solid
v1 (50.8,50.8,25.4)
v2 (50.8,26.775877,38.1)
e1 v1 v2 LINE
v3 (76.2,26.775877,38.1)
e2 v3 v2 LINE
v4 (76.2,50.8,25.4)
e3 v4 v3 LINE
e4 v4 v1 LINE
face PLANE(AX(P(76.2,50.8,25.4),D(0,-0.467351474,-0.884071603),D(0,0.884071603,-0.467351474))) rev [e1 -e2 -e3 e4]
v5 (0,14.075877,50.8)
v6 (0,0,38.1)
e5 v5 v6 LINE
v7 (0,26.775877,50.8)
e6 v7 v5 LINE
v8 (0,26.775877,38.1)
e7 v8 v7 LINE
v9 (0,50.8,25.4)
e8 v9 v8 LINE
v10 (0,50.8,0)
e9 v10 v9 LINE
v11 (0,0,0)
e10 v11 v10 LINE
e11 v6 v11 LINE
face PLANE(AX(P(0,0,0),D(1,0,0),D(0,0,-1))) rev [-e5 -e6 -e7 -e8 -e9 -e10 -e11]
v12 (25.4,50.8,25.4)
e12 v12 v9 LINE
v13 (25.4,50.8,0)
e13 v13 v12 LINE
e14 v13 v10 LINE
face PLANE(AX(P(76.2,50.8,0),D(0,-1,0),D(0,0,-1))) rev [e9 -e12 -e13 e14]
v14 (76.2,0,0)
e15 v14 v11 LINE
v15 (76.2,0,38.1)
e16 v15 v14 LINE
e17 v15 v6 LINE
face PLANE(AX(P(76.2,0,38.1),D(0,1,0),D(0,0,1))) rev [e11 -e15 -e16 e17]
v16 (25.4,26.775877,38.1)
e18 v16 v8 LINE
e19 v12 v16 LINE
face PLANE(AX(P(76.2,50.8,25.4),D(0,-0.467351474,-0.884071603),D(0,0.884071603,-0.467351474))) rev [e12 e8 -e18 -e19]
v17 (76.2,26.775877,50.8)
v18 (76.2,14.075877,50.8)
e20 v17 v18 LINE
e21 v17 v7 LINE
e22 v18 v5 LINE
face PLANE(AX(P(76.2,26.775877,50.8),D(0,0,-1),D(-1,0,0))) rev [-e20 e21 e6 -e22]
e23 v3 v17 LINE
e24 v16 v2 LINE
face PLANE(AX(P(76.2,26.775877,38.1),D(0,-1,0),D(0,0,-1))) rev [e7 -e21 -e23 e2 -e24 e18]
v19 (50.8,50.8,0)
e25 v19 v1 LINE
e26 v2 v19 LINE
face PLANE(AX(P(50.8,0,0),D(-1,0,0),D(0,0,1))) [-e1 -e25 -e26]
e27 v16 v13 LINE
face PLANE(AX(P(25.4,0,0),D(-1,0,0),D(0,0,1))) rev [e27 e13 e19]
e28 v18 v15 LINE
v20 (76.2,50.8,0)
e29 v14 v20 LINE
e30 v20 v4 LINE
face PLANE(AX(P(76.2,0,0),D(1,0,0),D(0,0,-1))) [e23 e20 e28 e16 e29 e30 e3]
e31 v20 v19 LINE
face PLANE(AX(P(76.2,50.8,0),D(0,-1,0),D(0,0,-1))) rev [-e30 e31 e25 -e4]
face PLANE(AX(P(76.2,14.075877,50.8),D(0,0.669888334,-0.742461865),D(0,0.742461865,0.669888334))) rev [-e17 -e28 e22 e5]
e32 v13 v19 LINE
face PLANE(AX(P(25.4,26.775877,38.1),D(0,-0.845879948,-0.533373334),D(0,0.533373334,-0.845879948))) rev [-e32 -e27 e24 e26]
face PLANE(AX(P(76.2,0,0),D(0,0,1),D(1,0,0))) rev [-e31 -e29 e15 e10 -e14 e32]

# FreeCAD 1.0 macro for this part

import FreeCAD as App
import Part
import Sketcher

V = App.Vector
Q = App.Units.Quantity

doc = App.newDocument("Part")
body = doc.addObject("PartDesign::Body", "Body")

# Sketch on YZ plane
sketch1 = doc.addObject("Sketcher::SketchObject", "Sketch")
body.addObject(sketch1)
sketch1.AttachmentSupport = (doc.YZ_Plane, [""])
sketch1.MapMode = "FlatFace"
sketch1.addGeometry([
    Part.LineSegment(V(0, 0, 0), V(50.8, 0, 0)),  # 0
    Part.LineSegment(V(50.8, 0, 0), V(50.8, 25.4, 0)),  # 1
    Part.LineSegment(V(50.8, 25.4, 0), V(26.775877, 38.1, 0)),  # 2
    Part.LineSegment(V(26.775877, 38.1, 0), V(26.775877, 50.8, 0)),  # 3
    Part.LineSegment(V(26.775877, 50.8, 0), V(14.075877, 50.8, 0)),  # 4
    Part.LineSegment(V(14.075877, 50.8, 0), V(0, 38.1, 0)),  # 5
    Part.LineSegment(V(0, 38.1, 0), V(0, 0, 0)),  # 6
], False)
sketch1.addConstraint([
    Sketcher.Constraint("Coincident", 0, 2, 1, 1),
    Sketcher.Constraint("Coincident", 1, 2, 2, 1),
    Sketcher.Constraint("Coincident", 2, 2, 3, 1),
    Sketcher.Constraint("Coincident", 3, 2, 4, 1),
    Sketcher.Constraint("Coincident", 4, 2, 5, 1),
    Sketcher.Constraint("Coincident", 5, 2, 6, 1),
    Sketcher.Constraint("Coincident", 6, 2, 0, 1),
    Sketcher.Constraint("Horizontal", 0),
    Sketcher.Constraint("Vertical", 1),
    Sketcher.Constraint("Vertical", 3),
    Sketcher.Constraint("Horizontal", 4),
    Sketcher.Constraint("Vertical", 6),
    Sketcher.Constraint("Coincident", 6, 2, -1, 1),
    Sketcher.Constraint("Horizontal", 2, 2, 5, 2),
    Sketcher.Constraint("Equal", 4, 3),
    Sketcher.Constraint("DistanceX", 0, 1, 0, 2, Q("2 in")),
    Sketcher.Constraint("DistanceY", 1, 1, 1, 2, Q("1 in")),
    Sketcher.Constraint("DistanceX", 4, 2, 4, 1, Q("0.5 in")),
    Sketcher.Constraint("DistanceY", 6, 2, 6, 1, Q("1.5 in")),
    Sketcher.Constraint("Distance", 2, 27.174409),
])
pad1 = doc.addObject("PartDesign::Pad", "Pad")
body.addObject(pad1)
pad1.Profile = sketch1
pad1.Length = Q("3 in")

# Sketch on YZ plane
sketch2 = doc.addObject("Sketcher::SketchObject", "Sketch001")
body.addObject(sketch2)
sketch2.AttachmentSupport = (doc.YZ_Plane, [""])
sketch2.MapMode = "FlatFace"
sketch2.AttachmentOffset = App.Placement(V(0, 0, 2 * 25.4), App.Rotation())
sketch2.addGeometry([
    Part.LineSegment(V(26.775877, 38.1, 0), V(50.8, 0, 0)),
    Part.LineSegment(V(50.8, 0, 0), V(50.8, 25.4, 0)),
    Part.LineSegment(V(50.8, 25.4, 0), V(26.775877, 38.1, 0)),
], False)
sketch2.addConstraint([
    Sketcher.Constraint("Coincident", 0, 2, 1, 1),
    Sketcher.Constraint("Coincident", 1, 2, 2, 1),
    Sketcher.Constraint("Coincident", 2, 2, 0, 1),
    Sketcher.Constraint("Vertical", 1),
    Sketcher.Constraint("PointOnObject", 0, 2, -1),
    Sketcher.Constraint("DistanceY", 1, 1, 1, 2, Q("1 in")),
    Sketcher.Constraint("DistanceX", -1, 1, 0, 2, Q("2 in")),
    Sketcher.Constraint("DistanceY", -1, 1, 2, 2, Q("1.5 in")),
    Sketcher.Constraint("Distance", 2, 27.174409),
])
pocket1 = doc.addObject("PartDesign::Pocket", "Pocket")
body.addObject(pocket1)
pocket1.Profile = sketch2
pocket1.Length = Q("1 in")

doc.recompute()
